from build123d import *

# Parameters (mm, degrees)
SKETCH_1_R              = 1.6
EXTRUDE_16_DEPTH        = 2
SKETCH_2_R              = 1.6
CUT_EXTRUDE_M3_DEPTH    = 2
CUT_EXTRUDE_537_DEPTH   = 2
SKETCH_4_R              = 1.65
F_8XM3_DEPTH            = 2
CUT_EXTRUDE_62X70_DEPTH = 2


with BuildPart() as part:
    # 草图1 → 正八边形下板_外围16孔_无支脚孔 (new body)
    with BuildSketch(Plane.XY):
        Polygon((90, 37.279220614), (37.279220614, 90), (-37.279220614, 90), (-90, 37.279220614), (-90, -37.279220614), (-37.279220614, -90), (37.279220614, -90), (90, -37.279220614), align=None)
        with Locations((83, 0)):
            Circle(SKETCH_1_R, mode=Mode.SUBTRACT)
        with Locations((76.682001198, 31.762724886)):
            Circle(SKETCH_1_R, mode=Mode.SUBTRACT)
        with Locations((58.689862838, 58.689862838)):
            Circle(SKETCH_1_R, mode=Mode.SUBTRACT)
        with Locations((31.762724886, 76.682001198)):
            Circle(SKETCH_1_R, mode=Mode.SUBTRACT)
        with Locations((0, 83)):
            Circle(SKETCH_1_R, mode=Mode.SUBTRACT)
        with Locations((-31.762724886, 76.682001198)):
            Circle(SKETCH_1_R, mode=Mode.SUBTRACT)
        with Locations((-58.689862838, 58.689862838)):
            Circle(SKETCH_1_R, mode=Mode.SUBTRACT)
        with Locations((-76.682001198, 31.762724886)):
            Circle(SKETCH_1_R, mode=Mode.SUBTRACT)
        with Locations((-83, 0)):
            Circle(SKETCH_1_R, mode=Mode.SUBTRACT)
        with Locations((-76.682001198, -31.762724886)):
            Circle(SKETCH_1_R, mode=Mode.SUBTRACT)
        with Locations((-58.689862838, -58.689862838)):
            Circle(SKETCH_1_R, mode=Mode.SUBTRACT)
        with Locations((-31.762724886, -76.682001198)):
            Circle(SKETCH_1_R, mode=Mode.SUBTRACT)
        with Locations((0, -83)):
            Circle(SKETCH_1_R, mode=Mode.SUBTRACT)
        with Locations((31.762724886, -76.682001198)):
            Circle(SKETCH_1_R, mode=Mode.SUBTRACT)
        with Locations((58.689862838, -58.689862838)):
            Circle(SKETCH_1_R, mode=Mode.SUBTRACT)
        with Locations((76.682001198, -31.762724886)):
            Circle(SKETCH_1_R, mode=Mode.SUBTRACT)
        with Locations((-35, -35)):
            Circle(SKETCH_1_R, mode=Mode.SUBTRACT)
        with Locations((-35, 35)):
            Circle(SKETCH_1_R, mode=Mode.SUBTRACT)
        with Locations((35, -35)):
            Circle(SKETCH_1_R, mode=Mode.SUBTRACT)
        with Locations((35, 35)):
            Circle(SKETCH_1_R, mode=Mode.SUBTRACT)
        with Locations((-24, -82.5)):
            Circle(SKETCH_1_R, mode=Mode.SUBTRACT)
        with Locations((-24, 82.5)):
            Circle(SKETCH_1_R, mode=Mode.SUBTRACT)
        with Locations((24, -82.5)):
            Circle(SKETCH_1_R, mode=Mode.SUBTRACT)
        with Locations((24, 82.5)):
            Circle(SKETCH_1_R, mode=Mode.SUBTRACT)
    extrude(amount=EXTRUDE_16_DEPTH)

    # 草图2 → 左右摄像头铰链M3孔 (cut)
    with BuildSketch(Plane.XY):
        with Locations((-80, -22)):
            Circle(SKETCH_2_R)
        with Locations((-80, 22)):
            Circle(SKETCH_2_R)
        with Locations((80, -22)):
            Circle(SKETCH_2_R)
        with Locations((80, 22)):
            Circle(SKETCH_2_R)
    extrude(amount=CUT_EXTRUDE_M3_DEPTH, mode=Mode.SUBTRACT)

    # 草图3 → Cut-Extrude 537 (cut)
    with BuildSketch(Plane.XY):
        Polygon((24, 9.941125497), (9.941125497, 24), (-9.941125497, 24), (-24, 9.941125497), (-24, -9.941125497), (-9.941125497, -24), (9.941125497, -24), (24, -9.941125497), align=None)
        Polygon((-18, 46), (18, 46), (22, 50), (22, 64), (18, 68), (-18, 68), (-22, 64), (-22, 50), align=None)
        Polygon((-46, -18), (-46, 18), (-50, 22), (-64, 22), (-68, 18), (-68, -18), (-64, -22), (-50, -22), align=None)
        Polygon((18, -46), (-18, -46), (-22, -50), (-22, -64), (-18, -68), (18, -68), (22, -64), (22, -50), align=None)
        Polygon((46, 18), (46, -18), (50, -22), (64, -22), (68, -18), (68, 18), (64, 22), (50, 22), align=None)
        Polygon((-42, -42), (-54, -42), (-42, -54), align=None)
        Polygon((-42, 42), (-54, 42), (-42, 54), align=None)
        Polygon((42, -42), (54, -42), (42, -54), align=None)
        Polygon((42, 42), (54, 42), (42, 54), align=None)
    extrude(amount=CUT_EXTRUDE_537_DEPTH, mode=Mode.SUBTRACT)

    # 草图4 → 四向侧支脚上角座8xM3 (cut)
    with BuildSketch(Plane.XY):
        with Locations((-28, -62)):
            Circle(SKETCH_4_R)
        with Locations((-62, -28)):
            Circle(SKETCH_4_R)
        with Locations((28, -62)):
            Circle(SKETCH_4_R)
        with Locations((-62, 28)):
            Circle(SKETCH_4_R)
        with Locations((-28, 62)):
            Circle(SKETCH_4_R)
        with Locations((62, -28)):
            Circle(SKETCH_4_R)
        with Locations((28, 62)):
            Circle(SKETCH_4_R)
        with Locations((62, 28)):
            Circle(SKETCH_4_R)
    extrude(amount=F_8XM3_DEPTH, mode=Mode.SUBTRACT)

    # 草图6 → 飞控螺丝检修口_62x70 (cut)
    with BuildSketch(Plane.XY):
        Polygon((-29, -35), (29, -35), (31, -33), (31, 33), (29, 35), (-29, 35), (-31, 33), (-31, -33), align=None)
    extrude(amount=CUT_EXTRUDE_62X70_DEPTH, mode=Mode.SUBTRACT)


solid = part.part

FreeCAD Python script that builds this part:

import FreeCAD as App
import Part
import Sketcher

V = App.Vector
Q = App.Units.Quantity

doc = App.newDocument("Part")
body = doc.addObject("PartDesign::Body", "Body")

# Sketch on XY plane
sketch1 = body.newObject("Sketcher::SketchObject", "Sketch")
sketch1.AttachmentSupport = (doc.getObject("XY_Plane"), [""])
sketch1.MapMode = "FlatFace"
sketch1.addGeometry(Part.LineSegment(V(90, 37.3, 0), V(37.3, 90, 0)), False)
sketch1.addGeometry(Part.LineSegment(V(37.3, 90, 0), V(-37.3, 90, 0)), False)
sketch1.addGeometry(Part.LineSegment(V(-37.3, 90, 0), V(-90, 37.3, 0)), False)
sketch1.addGeometry(Part.LineSegment(V(-90, 37.3, 0), V(-90, -37.3, 0)), False)
sketch1.addGeometry(Part.LineSegment(V(-90, -37.3, 0), V(-37.3, -90, 0)), False)
sketch1.addGeometry(Part.LineSegment(V(-37.3, -90, 0), V(37.3, -90, 0)), False)
sketch1.addGeometry(Part.LineSegment(V(37.3, -90, 0), V(90, -37.3, 0)), False)
sketch1.addGeometry(Part.LineSegment(V(90, -37.3, 0), V(90, 37.3, 0)), False)
sketch1.addGeometry(Part.Circle(V(-58.7, -58.7, 0), V(0, 0, 1), 1.6), False)
sketch1.addGeometry(Part.Circle(V(-31.8, -76.7, 0), V(0, 0, 1), 1.6), False)
sketch1.addGeometry(Part.Circle(V(-24, -82.5, 0), V(0, 0, 1), 1.6), False)
sketch1.addGeometry(Part.Circle(V(-76.7, -31.8, 0), V(0, 0, 1), 1.6), False)
sketch1.addGeometry(Part.Circle(V(-35, -35, 0), V(0, 0, 1), 1.6), False)
sketch1.addGeometry(Part.Circle(V(0, -83, 0), V(0, 0, 1), 1.6), False)
sketch1.addGeometry(Part.Circle(V(24, -82.5, 0), V(0, 0, 1), 1.6), False)
sketch1.addGeometry(Part.Circle(V(31.8, -76.7, 0), V(0, 0, 1), 1.6), False)
sketch1.addGeometry(Part.Circle(V(58.7, -58.7, 0), V(0, 0, 1), 1.6), False)
sketch1.addGeometry(Part.Circle(V(35, -35, 0), V(0, 0, 1), 1.6), False)
sketch1.addGeometry(Part.Circle(V(76.7, -31.8, 0), V(0, 0, 1), 1.6), False)
sketch1.addGeometry(Part.Circle(V(-83, 0, 0), V(0, 0, 1), 1.6), False)
sketch1.addGeometry(Part.Circle(V(-76.7, 31.8, 0), V(0, 0, 1), 1.6), False)
sketch1.addGeometry(Part.Circle(V(-35, 35, 0), V(0, 0, 1), 1.6), False)
sketch1.addGeometry(Part.Circle(V(-58.7, 58.7, 0), V(0, 0, 1), 1.6), False)
sketch1.addGeometry(Part.Circle(V(-31.8, 76.7, 0), V(0, 0, 1), 1.6), False)
sketch1.addGeometry(Part.Circle(V(-24, 82.5, 0), V(0, 0, 1), 1.6), False)
sketch1.addGeometry(Part.Circle(V(35, 35, 0), V(0, 0, 1), 1.6), False)
sketch1.addGeometry(Part.Circle(V(83, 0, 0), V(0, 0, 1), 1.6), False)
sketch1.addGeometry(Part.Circle(V(76.7, 31.8, 0), V(0, 0, 1), 1.6), False)
sketch1.addGeometry(Part.Circle(V(0, 83, 0), V(0, 0, 1), 1.6), False)
sketch1.addGeometry(Part.Circle(V(24, 82.5, 0), V(0, 0, 1), 1.6), False)
sketch1.addGeometry(Part.Circle(V(31.8, 76.7, 0), V(0, 0, 1), 1.6), False)
sketch1.addGeometry(Part.Circle(V(58.7, 58.7, 0), V(0, 0, 1), 1.6), False)
sketch1.addConstraint(Sketcher.Constraint("Coincident", 0, 2, 1, 1))
sketch1.addConstraint(Sketcher.Constraint("Coincident", 1, 2, 2, 1))
sketch1.addConstraint(Sketcher.Constraint("Coincident", 2, 2, 3, 1))
sketch1.addConstraint(Sketcher.Constraint("Coincident", 3, 2, 4, 1))
sketch1.addConstraint(Sketcher.Constraint("Coincident", 4, 2, 5, 1))
sketch1.addConstraint(Sketcher.Constraint("Coincident", 5, 2, 6, 1))
sketch1.addConstraint(Sketcher.Constraint("Coincident", 6, 2, 7, 1))
sketch1.addConstraint(Sketcher.Constraint("Coincident", 7, 2, 0, 1))
sketch1.addConstraint(Sketcher.Constraint("Horizontal", 1))
sketch1.addConstraint(Sketcher.Constraint("Vertical", 3))
sketch1.addConstraint(Sketcher.Constraint("Horizontal", 5))
sketch1.addConstraint(Sketcher.Constraint("Vertical", 7))
sketch1.addConstraint(Sketcher.Constraint("Equal", 8, 9))
sketch1.addConstraint(Sketcher.Constraint("Equal", 9, 10))
sketch1.addConstraint(Sketcher.Constraint("Equal", 10, 11))
sketch1.addConstraint(Sketcher.Constraint("Equal", 11, 12))
sketch1.addConstraint(Sketcher.Constraint("Equal", 12, 13))
sketch1.addConstraint(Sketcher.Constraint("Equal", 13, 14))
sketch1.addConstraint(Sketcher.Constraint("Equal", 14, 15))
sketch1.addConstraint(Sketcher.Constraint("Equal", 15, 16))
sketch1.addConstraint(Sketcher.Constraint("Equal", 16, 17))
sketch1.addConstraint(Sketcher.Constraint("Equal", 17, 18))
sketch1.addConstraint(Sketcher.Constraint("Equal", 18, 19))
sketch1.addConstraint(Sketcher.Constraint("Equal", 19, 20))
sketch1.addConstraint(Sketcher.Constraint("Equal", 20, 21))
sketch1.addConstraint(Sketcher.Constraint("Equal", 21, 22))
sketch1.addConstraint(Sketcher.Constraint("Equal", 22, 23))
sketch1.addConstraint(Sketcher.Constraint("Equal", 23, 24))
sketch1.addConstraint(Sketcher.Constraint("Equal", 24, 25))
sketch1.addConstraint(Sketcher.Constraint("Equal", 25, 26))
sketch1.addConstraint(Sketcher.Constraint("Equal", 26, 27))
sketch1.addConstraint(Sketcher.Constraint("Equal", 27, 28))
sketch1.addConstraint(Sketcher.Constraint("Equal", 28, 29))
sketch1.addConstraint(Sketcher.Constraint("Equal", 29, 30))
sketch1.addConstraint(Sketcher.Constraint("Equal", 30, 31))
sketch1.addConstraint(Sketcher.Constraint("Symmetric", 18, 3, 20, 3, -1, 1))
sketch1.addConstraint(Sketcher.Constraint("Symmetric", 17, 3, 21, 3, -1, 1))
sketch1.addConstraint(Sketcher.Constraint("Symmetric", 16, 3, 22, 3, -1, 1))
sketch1.addConstraint(Sketcher.Constraint("Symmetric", 15, 3, 23, 3, -1, 1))
sketch1.addConstraint(Sketcher.Constraint("Symmetric", 14, 3, 24, 3, -1, 1))
sketch1.addConstraint(Sketcher.Constraint("Symmetric", 12, 3, 25, 3, -1, 1))
sketch1.addConstraint(Sketcher.Constraint("Symmetric", 19, 3, 26, 3, -1, 1))
sketch1.addConstraint(Sketcher.Constraint("Symmetric", 11, 3, 27, 3, -1, 1))
sketch1.addConstraint(Sketcher.Constraint("Symmetric", 13, 3, 28, 3, -1, 1))
sketch1.addConstraint(Sketcher.Constraint("Symmetric", 10, 3, 29, 3, -1, 1))
sketch1.addConstraint(Sketcher.Constraint("Symmetric", 9, 3, 30, 3, -1, 1))
sketch1.addConstraint(Sketcher.Constraint("Symmetric", 8, 3, 31, 3, -1, 1))
sketch1.addConstraint(Sketcher.Constraint("Symmetric", 0, 2, 4, 2, -1, 1))
sketch1.addConstraint(Sketcher.Constraint("Symmetric", 2, 2, 6, 2, -1, 1))
sketch1.addConstraint(Sketcher.Constraint("Symmetric", 10, 3, 14, 3, -2))
sketch1.addConstraint(Sketcher.Constraint("Symmetric", 9, 3, 15, 3, -2))
sketch1.addConstraint(Sketcher.Constraint("Symmetric", 8, 3, 16, 3, -2))
sketch1.addConstraint(Sketcher.Constraint("Symmetric", 12, 3, 17, 3, -2))
sketch1.addConstraint(Sketcher.Constraint("Symmetric", 11, 3, 18, 3, -2))
sketch1.addConstraint(Sketcher.Constraint("PointOnObject", 13, 3, -2))
sketch1.addConstraint(Sketcher.Constraint("PointOnObject", 19, 3, -1))
sketch1.addConstraint(Sketcher.Constraint("Perpendicular", 0, 2))
sketch1.addConstraint(Sketcher.Constraint("Perpendicular", 2, 4))
sketch1.addConstraint(Sketcher.Constraint("Perpendicular", 4, 6))
sketch1.addConstraint(Sketcher.Constraint("Horizontal", 3, 2, 6, 2))
sketch1.addConstraint(Sketcher.Constraint("Vertical", 1, 2, 4, 2))
sketch1.addConstraint(Sketcher.Constraint("Equal", 5, 3))
sketch1.addConstraint(Sketcher.Constraint("Diameter", 8, Q("3.2 mm")))
sketch1.addConstraint(Sketcher.Constraint("DistanceX", 10, 3, -1, 1, Q("24 mm")))
sketch1.addConstraint(Sketcher.Constraint("DistanceX", 12, 3, -1, 1, Q("35 mm")))
sketch1.addConstraint(Sketcher.Constraint("DistanceY", 12, 3, -1, 1, Q("35 mm")))
sketch1.addConstraint(Sketcher.Constraint("DistanceY", 13, 3, -1, 1, Q("83 mm")))
sketch1.addConstraint(Sketcher.Constraint("DistanceX", 19, 3, -1, 1, Q("83 mm")))
sketch1.addConstraint(Sketcher.Constraint("DistanceY", -1, 1, 0, 2, Q("90 mm")))
sketch1.addConstraint(Sketcher.Constraint("DistanceY", 10, 3, -1, 1, Q("82.5 mm")))
sketch1.addConstraint(Sketcher.Constraint("DistanceY", 9, 3, -1, 1, Q("76.682001 mm")))
sketch1.addConstraint(Sketcher.Constraint("DistanceX", 11, 3, -1, 1, Q("76.682001 mm")))
sketch1.addConstraint(Sketcher.Constraint("DistanceX", 1, 2, 1, 1, Q("74.558441 mm")))
sketch1.addConstraint(Sketcher.Constraint("DistanceY", 9, 3, 8, 3, Q("17.992138 mm")))
sketch1.addConstraint(Sketcher.Constraint("DistanceX", 11, 3, 8, 3, Q("17.992138 mm")))
sketch1.addConstraint(Sketcher.Constraint("DistanceX", 9, 3, 15, 3, Q("63.52545 mm")))
sketch1.addConstraint(Sketcher.Constraint("DistanceY", 11, 3, 20, 3, Q("63.52545 mm")))
pad1 = body.newObject("PartDesign::Pad", "Pad")
pad1.Profile = sketch1
pad1.Length = 2

# Sketch on XY plane
sketch2 = body.newObject("Sketcher::SketchObject", "Sketch001")
sketch2.AttachmentSupport = (doc.getObject("XY_Plane"), [""])
sketch2.MapMode = "FlatFace"
sketch2.addGeometry(Part.Circle(V(-80, -22, 0), V(0, 0, 1), 1.6), False)
sketch2.addGeometry(Part.Circle(V(-80, 22, 0), V(0, 0, 1), 1.6), False)
sketch2.addGeometry(Part.Circle(V(80, -22, 0), V(0, 0, 1), 1.6), False)
sketch2.addGeometry(Part.Circle(V(80, 22, 0), V(0, 0, 1), 1.6), False)
sketch2.addConstraint(Sketcher.Constraint("Equal", 0, 1))
sketch2.addConstraint(Sketcher.Constraint("Equal", 1, 2))
sketch2.addConstraint(Sketcher.Constraint("Equal", 2, 3))
sketch2.addConstraint(Sketcher.Constraint("Symmetric", 1, 3, 2, 3, -1, 1))
sketch2.addConstraint(Sketcher.Constraint("Symmetric", 0, 3, 3, 3, -1, 1))
sketch2.addConstraint(Sketcher.Constraint("Symmetric", 0, 3, 2, 3, -2))
sketch2.addConstraint(Sketcher.Constraint("Diameter", 0, Q("3.2 mm")))
sketch2.addConstraint(Sketcher.Constraint("DistanceX", 0, 3, -1, 1, Q("80 mm")))
sketch2.addConstraint(Sketcher.Constraint("DistanceY", 0, 3, -1, 1, Q("22 mm")))
pocket1 = body.newObject("PartDesign::Pocket", "Pocket")
pocket1.Profile = sketch2
pocket1.Length = 2
pocket1.Reversed = True

# Sketch on XY plane
sketch3 = body.newObject("Sketcher::SketchObject", "Sketch002")
sketch3.AttachmentSupport = (doc.getObject("XY_Plane"), [""])
sketch3.MapMode = "FlatFace"
sketch3.addGeometry(Part.LineSegment(V(24, 10, 0), V(10, 24, 0)), False)
sketch3.addGeometry(Part.LineSegment(V(10, 24, 0), V(-10, 24, 0)), False)
sketch3.addGeometry(Part.LineSegment(V(-10, 24, 0), V(-24, 10, 0)), False)
sketch3.addGeometry(Part.LineSegment(V(-24, 10, 0), V(-24, -10, 0)), False)
sketch3.addGeometry(Part.LineSegment(V(-24, -10, 0), V(-10, -24, 0)), False)
sketch3.addGeometry(Part.LineSegment(V(-10, -24, 0), V(10, -24, 0)), False)
sketch3.addGeometry(Part.LineSegment(V(10, -24, 0), V(24, -10, 0)), False)
sketch3.addGeometry(Part.LineSegment(V(24, -10, 0), V(24, 10, 0)), False)
sketch3.addGeometry(Part.LineSegment(V(-18, 46, 0), V(18, 46, 0)), False)
sketch3.addGeometry(Part.LineSegment(V(18, 46, 0), V(22, 50, 0)), False)
sketch3.addGeometry(Part.LineSegment(V(22, 50, 0), V(22, 64, 0)), False)
sketch3.addGeometry(Part.LineSegment(V(22, 64, 0), V(18, 68, 0)), False)
sketch3.addGeometry(Part.LineSegment(V(18, 68, 0), V(-18, 68, 0)), False)
sketch3.addGeometry(Part.LineSegment(V(-18, 68, 0), V(-22, 64, 0)), False)
sketch3.addGeometry(Part.LineSegment(V(-22, 64, 0), V(-22, 50, 0)), False)
sketch3.addGeometry(Part.LineSegment(V(-22, 50, 0), V(-18, 46, 0)), False)
sketch3.addGeometry(Part.LineSegment(V(-46, -18, 0), V(-46, 18, 0)), False)
sketch3.addGeometry(Part.LineSegment(V(-46, 18, 0), V(-50, 22, 0)), False)
sketch3.addGeometry(Part.LineSegment(V(-50, 22, 0), V(-64, 22, 0)), False)
sketch3.addGeometry(Part.LineSegment(V(-64, 22, 0), V(-68, 18, 0)), False)
sketch3.addGeometry(Part.LineSegment(V(-68, 18, 0), V(-68, -18, 0)), False)
sketch3.addGeometry(Part.LineSegment(V(-68, -18, 0), V(-64, -22, 0)), False)
sketch3.addGeometry(Part.LineSegment(V(-64, -22, 0), V(-50, -22, 0)), False)
sketch3.addGeometry(Part.LineSegment(V(-50, -22, 0), V(-46, -18, 0)), False)
sketch3.addGeometry(Part.LineSegment(V(18, -46, 0), V(-18, -46, 0)), False)
sketch3.addGeometry(Part.LineSegment(V(-18, -46, 0), V(-22, -50, 0)), False)
sketch3.addGeometry(Part.LineSegment(V(-22, -50, 0), V(-22, -64, 0)), False)
sketch3.addGeometry(Part.LineSegment(V(-22, -64, 0), V(-18, -68, 0)), False)
sketch3.addGeometry(Part.LineSegment(V(-18, -68, 0), V(18, -68, 0)), False)
sketch3.addGeometry(Part.LineSegment(V(18, -68, 0), V(22, -64, 0)), False)
sketch3.addGeometry(Part.LineSegment(V(22, -64, 0), V(22, -50, 0)), False)
sketch3.addGeometry(Part.LineSegment(V(22, -50, 0), V(18, -46, 0)), False)
sketch3.addGeometry(Part.LineSegment(V(46, 18, 0), V(46, -18, 0)), False)
sketch3.addGeometry(Part.LineSegment(V(46, -18, 0), V(50, -22, 0)), False)
sketch3.addGeometry(Part.LineSegment(V(50, -22, 0), V(64, -22, 0)), False)
sketch3.addGeometry(Part.LineSegment(V(64, -22, 0), V(68, -18, 0)), False)
sketch3.addGeometry(Part.LineSegment(V(68, -18, 0), V(68, 18, 0)), False)
sketch3.addGeometry(Part.LineSegment(V(68, 18, 0), V(64, 22, 0)), False)
sketch3.addGeometry(Part.LineSegment(V(64, 22, 0), V(50, 22, 0)), False)
sketch3.addGeometry(Part.LineSegment(V(50, 22, 0), V(46, 18, 0)), False)
sketch3.addGeometry(Part.LineSegment(V(-42, -42, 0), V(-54, -42, 0)), False)
sketch3.addGeometry(Part.LineSegment(V(-54, -42, 0), V(-42, -54, 0)), False)
sketch3.addGeometry(Part.LineSegment(V(-42, -54, 0), V(-42, -42, 0)), False)
sketch3.addGeometry(Part.LineSegment(V(-54, 42, 0), V(-42, 42, 0)), False)
sketch3.addGeometry(Part.LineSegment(V(-42, 42, 0), V(-42, 54, 0)), False)
sketch3.addGeometry(Part.LineSegment(V(-42, 54, 0), V(-54, 42, 0)), False)
sketch3.addGeometry(Part.LineSegment(V(54, -42, 0), V(42, -42, 0)), False)
sketch3.addGeometry(Part.LineSegment(V(42, -42, 0), V(42, -54, 0)), False)
sketch3.addGeometry(Part.LineSegment(V(42, -54, 0), V(54, -42, 0)), False)
sketch3.addGeometry(Part.LineSegment(V(42, 42, 0), V(54, 42, 0)), False)
sketch3.addGeometry(Part.LineSegment(V(54, 42, 0), V(42, 54, 0)), False)
sketch3.addGeometry(Part.LineSegment(V(42, 54, 0), V(42, 42, 0)), False)
sketch3.addConstraint(Sketcher.Constraint("Coincident", 0, 2, 1, 1))
sketch3.addConstraint(Sketcher.Constraint("Coincident", 1, 2, 2, 1))
sketch3.addConstraint(Sketcher.Constraint("Coincident", 2, 2, 3, 1))
sketch3.addConstraint(Sketcher.Constraint("Coincident", 3, 2, 4, 1))
sketch3.addConstraint(Sketcher.Constraint("Coincident", 4, 2, 5, 1))
sketch3.addConstraint(Sketcher.Constraint("Coincident", 5, 2, 6, 1))
sketch3.addConstraint(Sketcher.Constraint("Coincident", 6, 2, 7, 1))
sketch3.addConstraint(Sketcher.Constraint("Coincident", 7, 2, 0, 1))
sketch3.addConstraint(Sketcher.Constraint("Coincident", 8, 2, 9, 1))
sketch3.addConstraint(Sketcher.Constraint("Coincident", 9, 2, 10, 1))
sketch3.addConstraint(Sketcher.Constraint("Coincident", 10, 2, 11, 1))
sketch3.addConstraint(Sketcher.Constraint("Coincident", 11, 2, 12, 1))
sketch3.addConstraint(Sketcher.Constraint("Coincident", 12, 2, 13, 1))
sketch3.addConstraint(Sketcher.Constraint("Coincident", 13, 2, 14, 1))
sketch3.addConstraint(Sketcher.Constraint("Coincident", 14, 2, 15, 1))
sketch3.addConstraint(Sketcher.Constraint("Coincident", 15, 2, 8, 1))
sketch3.addConstraint(Sketcher.Constraint("Coincident", 16, 2, 17, 1))
sketch3.addConstraint(Sketcher.Constraint("Coincident", 17, 2, 18, 1))
sketch3.addConstraint(Sketcher.Constraint("Coincident", 18, 2, 19, 1))
sketch3.addConstraint(Sketcher.Constraint("Coincident", 19, 2, 20, 1))
sketch3.addConstraint(Sketcher.Constraint("Coincident", 20, 2, 21, 1))
sketch3.addConstraint(Sketcher.Constraint("Coincident", 21, 2, 22, 1))
sketch3.addConstraint(Sketcher.Constraint("Coincident", 22, 2, 23, 1))
sketch3.addConstraint(Sketcher.Constraint("Coincident", 23, 2, 16, 1))
sketch3.addConstraint(Sketcher.Constraint("Coincident", 24, 2, 25, 1))
sketch3.addConstraint(Sketcher.Constraint("Coincident", 25, 2, 26, 1))
sketch3.addConstraint(Sketcher.Constraint("Coincident", 26, 2, 27, 1))
sketch3.addConstraint(Sketcher.Constraint("Coincident", 27, 2, 28, 1))
sketch3.addConstraint(Sketcher.Constraint("Coincident", 28, 2, 29, 1))
sketch3.addConstraint(Sketcher.Constraint("Coincident", 29, 2, 30, 1))
sketch3.addConstraint(Sketcher.Constraint("Coincident", 30, 2, 31, 1))
sketch3.addConstraint(Sketcher.Constraint("Coincident", 31, 2, 24, 1))
sketch3.addConstraint(Sketcher.Constraint("Coincident", 32, 2, 33, 1))
sketch3.addConstraint(Sketcher.Constraint("Coincident", 33, 2, 34, 1))
sketch3.addConstraint(Sketcher.Constraint("Coincident", 34, 2, 35, 1))
sketch3.addConstraint(Sketcher.Constraint("Coincident", 35, 2, 36, 1))
sketch3.addConstraint(Sketcher.Constraint("Coincident", 36, 2, 37, 1))
sketch3.addConstraint(Sketcher.Constraint("Coincident", 37, 2, 38, 1))
sketch3.addConstraint(Sketcher.Constraint("Coincident", 38, 2, 39, 1))
sketch3.addConstraint(Sketcher.Constraint("Coincident", 39, 2, 32, 1))
sketch3.addConstraint(Sketcher.Constraint("Coincident", 40, 2, 41, 1))
sketch3.addConstraint(Sketcher.Constraint("Coincident", 41, 2, 42, 1))
sketch3.addConstraint(Sketcher.Constraint("Coincident", 42, 2, 40, 1))
sketch3.addConstraint(Sketcher.Constraint("Coincident", 43, 2, 44, 1))
sketch3.addConstraint(Sketcher.Constraint("Coincident", 44, 2, 45, 1))
sketch3.addConstraint(Sketcher.Constraint("Coincident", 45, 2, 43, 1))
sketch3.addConstraint(Sketcher.Constraint("Coincident", 46, 2, 47, 1))
sketch3.addConstraint(Sketcher.Constraint("Coincident", 47, 2, 48, 1))
sketch3.addConstraint(Sketcher.Constraint("Coincident", 48, 2, 46, 1))
sketch3.addConstraint(Sketcher.Constraint("Coincident", 49, 2, 50, 1))
sketch3.addConstraint(Sketcher.Constraint("Coincident", 50, 2, 51, 1))
sketch3.addConstraint(Sketcher.Constraint("Coincident", 51, 2, 49, 1))
sketch3.addConstraint(Sketcher.Constraint("Horizontal", 1))
sketch3.addConstraint(Sketcher.Constraint("Vertical", 3))
sketch3.addConstraint(Sketcher.Constraint("Horizontal", 5))
sketch3.addConstraint(Sketcher.Constraint("Vertical", 7))
sketch3.addConstraint(Sketcher.Constraint("Horizontal", 8))
sketch3.addConstraint(Sketcher.Constraint("Vertical", 10))
sketch3.addConstraint(Sketcher.Constraint("Horizontal", 12))
sketch3.addConstraint(Sketcher.Constraint("Vertical", 14))
sketch3.addConstraint(Sketcher.Constraint("Vertical", 16))
sketch3.addConstraint(Sketcher.Constraint("Horizontal", 18))
sketch3.addConstraint(Sketcher.Constraint("Vertical", 20))
sketch3.addConstraint(Sketcher.Constraint("Horizontal", 22))
sketch3.addConstraint(Sketcher.Constraint("Horizontal", 24))
sketch3.addConstraint(Sketcher.Constraint("Vertical", 26))
sketch3.addConstraint(Sketcher.Constraint("Horizontal", 28))
sketch3.addConstraint(Sketcher.Constraint("Vertical", 30))
sketch3.addConstraint(Sketcher.Constraint("Vertical", 32))
sketch3.addConstraint(Sketcher.Constraint("Horizontal", 34))
sketch3.addConstraint(Sketcher.Constraint("Vertical", 36))
sketch3.addConstraint(Sketcher.Constraint("Horizontal", 38))
sketch3.addConstraint(Sketcher.Constraint("Horizontal", 40))
sketch3.addConstraint(Sketcher.Constraint("Vertical", 42))
sketch3.addConstraint(Sketcher.Constraint("Horizontal", 43))
sketch3.addConstraint(Sketcher.Constraint("Vertical", 44))
sketch3.addConstraint(Sketcher.Constraint("Horizontal", 46))
sketch3.addConstraint(Sketcher.Constraint("Vertical", 47))
sketch3.addConstraint(Sketcher.Constraint("Horizontal", 49))
sketch3.addConstraint(Sketcher.Constraint("Vertical", 51))
sketch3.addConstraint(Sketcher.Constraint("Symmetric", 0, 2, 4, 2, -1, 1))
sketch3.addConstraint(Sketcher.Constraint("Symmetric", 2, 2, 6, 2, -1, 1))
sketch3.addConstraint(Sketcher.Constraint("Symmetric", 8, 2, 24, 2, -1, 1))
sketch3.addConstraint(Sketcher.Constraint("Symmetric", 9, 2, 25, 2, -1, 1))
sketch3.addConstraint(Sketcher.Constraint("Symmetric", 11, 2, 27, 2, -1, 1))
sketch3.addConstraint(Sketcher.Constraint("Symmetric", 13, 2, 29, 2, -1, 1))
sketch3.addConstraint(Sketcher.Constraint("Symmetric", 16, 2, 32, 2, -1, 1))
sketch3.addConstraint(Sketcher.Constraint("Symmetric", 17, 2, 33, 2, -1, 1))
sketch3.addConstraint(Sketcher.Constraint("Symmetric", 19, 2, 35, 2, -1, 1))
sketch3.addConstraint(Sketcher.Constraint("Symmetric", 21, 2, 37, 2, -1, 1))
sketch3.addConstraint(Sketcher.Constraint("Symmetric", 43, 2, 46, 2, -1, 1))
sketch3.addConstraint(Sketcher.Constraint("Symmetric", 40, 2, 49, 2, -1, 1))
sketch3.addConstraint(Sketcher.Constraint("Symmetric", 41, 2, 50, 2, -1, 1))
sketch3.addConstraint(Sketcher.Constraint("Symmetric", 10, 2, 13, 2, -2))
sketch3.addConstraint(Sketcher.Constraint("Symmetric", 22, 2, 33, 2, -2))
sketch3.addConstraint(Sketcher.Constraint("Symmetric", 42, 2, 46, 2, -2))
sketch3.addConstraint(Sketcher.Constraint("Perpendicular", 0, 2))
sketch3.addConstraint(Sketcher.Constraint("Perpendicular", 2, 4))
sketch3.addConstraint(Sketcher.Constraint("Perpendicular", 4, 6))
sketch3.addConstraint(Sketcher.Constraint("Parallel", 6, 9))
sketch3.addConstraint(Sketcher.Constraint("Perpendicular", 9, 11))
sketch3.addConstraint(Sketcher.Constraint("Perpendicular", 11, 13))
sketch3.addConstraint(Sketcher.Constraint("Perpendicular", 13, 15))
sketch3.addConstraint(Sketcher.Constraint("Parallel", 15, 17))
sketch3.addConstraint(Sketcher.Constraint("Perpendicular", 17, 19))
sketch3.addConstraint(Sketcher.Constraint("Perpendicular", 19, 21))
sketch3.addConstraint(Sketcher.Constraint("Perpendicular", 21, 23))
sketch3.addConstraint(Sketcher.Constraint("Perpendicular", 25, 27))
sketch3.addConstraint(Sketcher.Constraint("Perpendicular", 27, 29))
sketch3.addConstraint(Sketcher.Constraint("Perpendicular", 29, 31))
sketch3.addConstraint(Sketcher.Constraint("Perpendicular", 33, 35))
sketch3.addConstraint(Sketcher.Constraint("Perpendicular", 35, 37))
sketch3.addConstraint(Sketcher.Constraint("Perpendicular", 37, 39))
sketch3.addConstraint(Sketcher.Constraint("Perpendicular", 39, 41))
sketch3.addConstraint(Sketcher.Constraint("Perpendicular", 41, 45))
sketch3.addConstraint(Sketcher.Constraint("Parallel", 45, 48))
sketch3.addConstraint(Sketcher.Constraint("Horizontal", 3, 2, 6, 2))
sketch3.addConstraint(Sketcher.Constraint("Horizontal", 9, 2, 14, 2))
sketch3.addConstraint(Sketcher.Constraint("Horizontal", 16, 2, 19, 2))
sketch3.addConstraint(Sketcher.Constraint("Horizontal", 20, 2, 23, 2))
sketch3.addConstraint(Sketcher.Constraint("Horizontal", 25, 2, 30, 2))
sketch3.addConstraint(Sketcher.Constraint("Horizontal", 23, 2, 32, 2))
sketch3.addConstraint(Sketcher.Constraint("Horizontal", 36, 2, 39, 2))
sketch3.addConstraint(Sketcher.Constraint("Horizontal", 41, 2, 47, 2))
sketch3.addConstraint(Sketcher.Constraint("Horizontal", 44, 2, 50, 2))
sketch3.addConstraint(Sketcher.Constraint("Vertical", 8, 2, 11, 2))
sketch3.addConstraint(Sketcher.Constraint("Equal", 5, 3))
sketch3.addConstraint(Sketcher.Constraint("Equal", 38, 10))
sketch3.addConstraint(Sketcher.Constraint("Equal", 28, 16))
sketch3.addConstraint(Sketcher.Constraint("Equal", 15, 17))
sketch3.addConstraint(Sketcher.Constraint("DistanceX", 8, 1, 8, 2, Q("36 mm")))
sketch3.addConstraint(Sketcher.Constraint("DistanceX", 18, 2, 18, 1, Q("14 mm")))
sketch3.addConstraint(Sketcher.Constraint("DistanceX", 40, 2, 40, 1, Q("12 mm")))
sketch3.addConstraint(Sketcher.Constraint("DistanceY", -1, 1, 0, 2, Q("24 mm")))
sketch3.addConstraint(Sketcher.Constraint("DistanceY", -1, 1, 8, 2, Q("46 mm")))
sketch3.addConstraint(Sketcher.Constraint("DistanceX", -1, 1, 9, 2, Q("22 mm")))
sketch3.addConstraint(Sketcher.Constraint("DistanceX", 16, 2, -1, 1, Q("46 mm")))
sketch3.addConstraint(Sketcher.Constraint("DistanceX", 40, 2, -1, 1, Q("54 mm")))
sketch3.addConstraint(Sketcher.Constraint("DistanceY", 40, 2, -1, 1, Q("42 mm")))
sketch3.addConstraint(Sketcher.Constraint("DistanceX", 1, 2, 1, 1, Q("19.882251 mm")))
pocket2 = body.newObject("PartDesign::Pocket", "Pocket001")
pocket2.Profile = sketch3
pocket2.Length = 2
pocket2.Reversed = True

# Sketch on XY plane
sketch4 = body.newObject("Sketcher::SketchObject", "Sketch003")
sketch4.AttachmentSupport = (doc.getObject("XY_Plane"), [""])
sketch4.MapMode = "FlatFace"
sketch4.addGeometry(Part.Circle(V(-28, -62, 0), V(0, 0, 1), 1.6), False)
sketch4.addGeometry(Part.Circle(V(-62, -28, 0), V(0, 0, 1), 1.6), False)
sketch4.addGeometry(Part.Circle(V(28, -62, 0), V(0, 0, 1), 1.6), False)
sketch4.addGeometry(Part.Circle(V(-62, 28, 0), V(0, 0, 1), 1.6), False)
sketch4.addGeometry(Part.Circle(V(-28, 62, 0), V(0, 0, 1), 1.6), False)
sketch4.addGeometry(Part.Circle(V(62, -28, 0), V(0, 0, 1), 1.6), False)
sketch4.addGeometry(Part.Circle(V(28, 62, 0), V(0, 0, 1), 1.6), False)
sketch4.addGeometry(Part.Circle(V(62, 28, 0), V(0, 0, 1), 1.6), False)
sketch4.addConstraint(Sketcher.Constraint("Equal", 0, 1))
sketch4.addConstraint(Sketcher.Constraint("Equal", 1, 2))
sketch4.addConstraint(Sketcher.Constraint("Equal", 2, 3))
sketch4.addConstraint(Sketcher.Constraint("Equal", 3, 4))
sketch4.addConstraint(Sketcher.Constraint("Equal", 4, 5))
sketch4.addConstraint(Sketcher.Constraint("Equal", 5, 6))
sketch4.addConstraint(Sketcher.Constraint("Equal", 6, 7))
sketch4.addConstraint(Sketcher.Constraint("Symmetric", 2, 3, 4, 3, -1, 1))
sketch4.addConstraint(Sketcher.Constraint("Symmetric", 3, 3, 5, 3, -1, 1))
sketch4.addConstraint(Sketcher.Constraint("Symmetric", 0, 3, 6, 3, -1, 1))
sketch4.addConstraint(Sketcher.Constraint("Symmetric", 1, 3, 7, 3, -1, 1))
sketch4.addConstraint(Sketcher.Constraint("Symmetric", 0, 3, 2, 3, -2))
sketch4.addConstraint(Sketcher.Constraint("Symmetric", 1, 3, 5, 3, -2))
sketch4.addConstraint(Sketcher.Constraint("Diameter", 0, Q("3.3 mm")))
sketch4.addConstraint(Sketcher.Constraint("DistanceX", 0, 3, -1, 1, Q("28 mm")))
sketch4.addConstraint(Sketcher.Constraint("DistanceY", 0, 3, -1, 1, Q("62 mm")))
sketch4.addConstraint(Sketcher.Constraint("DistanceX", 1, 3, -1, 1, Q("62 mm")))
sketch4.addConstraint(Sketcher.Constraint("DistanceY", 1, 3, -1, 1, Q("28 mm")))
pocket3 = body.newObject("PartDesign::Pocket", "Pocket002")
pocket3.Profile = sketch4
pocket3.Length = 2
pocket3.Reversed = True

# Sketch on XY plane
sketch5 = body.newObject("Sketcher::SketchObject", "Sketch004")
sketch5.AttachmentSupport = (doc.getObject("XY_Plane"), [""])
sketch5.MapMode = "FlatFace"
sketch5.addGeometry(Part.LineSegment(V(-29, -35, 0), V(29, -35, 0)), False)
sketch5.addGeometry(Part.LineSegment(V(29, -35, 0), V(31, -33, 0)), False)
sketch5.addGeometry(Part.LineSegment(V(31, -33, 0), V(31, 33, 0)), False)
sketch5.addGeometry(Part.LineSegment(V(31, 33, 0), V(29, 35, 0)), False)
sketch5.addGeometry(Part.LineSegment(V(29, 35, 0), V(-29, 35, 0)), False)
sketch5.addGeometry(Part.LineSegment(V(-29, 35, 0), V(-31, 33, 0)), False)
sketch5.addGeometry(Part.LineSegment(V(-31, 33, 0), V(-31, -33, 0)), False)
sketch5.addGeometry(Part.LineSegment(V(-31, -33, 0), V(-29, -35, 0)), False)
sketch5.addConstraint(Sketcher.Constraint("Coincident", 0, 2, 1, 1))
sketch5.addConstraint(Sketcher.Constraint("Coincident", 1, 2, 2, 1))
sketch5.addConstraint(Sketcher.Constraint("Coincident", 2, 2, 3, 1))
sketch5.addConstraint(Sketcher.Constraint("Coincident", 3, 2, 4, 1))
sketch5.addConstraint(Sketcher.Constraint("Coincident", 4, 2, 5, 1))
sketch5.addConstraint(Sketcher.Constraint("Coincident", 5, 2, 6, 1))
sketch5.addConstraint(Sketcher.Constraint("Coincident", 6, 2, 7, 1))
sketch5.addConstraint(Sketcher.Constraint("Coincident", 7, 2, 0, 1))
sketch5.addConstraint(Sketcher.Constraint("Horizontal", 0))
sketch5.addConstraint(Sketcher.Constraint("Vertical", 2))
sketch5.addConstraint(Sketcher.Constraint("Horizontal", 4))
sketch5.addConstraint(Sketcher.Constraint("Vertical", 6))
sketch5.addConstraint(Sketcher.Constraint("Symmetric", 0, 2, 4, 2, -1, 1))
sketch5.addConstraint(Sketcher.Constraint("Symmetric", 1, 2, 5, 2, -1, 1))
sketch5.addConstraint(Sketcher.Constraint("Perpendicular", 1, 3))
sketch5.addConstraint(Sketcher.Constraint("Perpendicular", 5, 7))
sketch5.addConstraint(Sketcher.Constraint("Horizontal", 2, 2, 5, 2))
sketch5.addConstraint(Sketcher.Constraint("Horizontal", 1, 2, 6, 2))
sketch5.addConstraint(Sketcher.Constraint("Vertical", 0, 2, 3, 2))
sketch5.addConstraint(Sketcher.Constraint("DistanceX", 0, 1, 0, 2, Q("58 mm")))
sketch5.addConstraint(Sketcher.Constraint("DistanceY", 2, 1, 2, 2, Q("66 mm")))
sketch5.addConstraint(Sketcher.Constraint("DistanceY", 0, 2, -1, 1, Q("35 mm")))
pocket4 = body.newObject("PartDesign::Pocket", "Pocket003")
pocket4.Profile = sketch5
pocket4.Length = 2
pocket4.Reversed = True

doc.recompute()
